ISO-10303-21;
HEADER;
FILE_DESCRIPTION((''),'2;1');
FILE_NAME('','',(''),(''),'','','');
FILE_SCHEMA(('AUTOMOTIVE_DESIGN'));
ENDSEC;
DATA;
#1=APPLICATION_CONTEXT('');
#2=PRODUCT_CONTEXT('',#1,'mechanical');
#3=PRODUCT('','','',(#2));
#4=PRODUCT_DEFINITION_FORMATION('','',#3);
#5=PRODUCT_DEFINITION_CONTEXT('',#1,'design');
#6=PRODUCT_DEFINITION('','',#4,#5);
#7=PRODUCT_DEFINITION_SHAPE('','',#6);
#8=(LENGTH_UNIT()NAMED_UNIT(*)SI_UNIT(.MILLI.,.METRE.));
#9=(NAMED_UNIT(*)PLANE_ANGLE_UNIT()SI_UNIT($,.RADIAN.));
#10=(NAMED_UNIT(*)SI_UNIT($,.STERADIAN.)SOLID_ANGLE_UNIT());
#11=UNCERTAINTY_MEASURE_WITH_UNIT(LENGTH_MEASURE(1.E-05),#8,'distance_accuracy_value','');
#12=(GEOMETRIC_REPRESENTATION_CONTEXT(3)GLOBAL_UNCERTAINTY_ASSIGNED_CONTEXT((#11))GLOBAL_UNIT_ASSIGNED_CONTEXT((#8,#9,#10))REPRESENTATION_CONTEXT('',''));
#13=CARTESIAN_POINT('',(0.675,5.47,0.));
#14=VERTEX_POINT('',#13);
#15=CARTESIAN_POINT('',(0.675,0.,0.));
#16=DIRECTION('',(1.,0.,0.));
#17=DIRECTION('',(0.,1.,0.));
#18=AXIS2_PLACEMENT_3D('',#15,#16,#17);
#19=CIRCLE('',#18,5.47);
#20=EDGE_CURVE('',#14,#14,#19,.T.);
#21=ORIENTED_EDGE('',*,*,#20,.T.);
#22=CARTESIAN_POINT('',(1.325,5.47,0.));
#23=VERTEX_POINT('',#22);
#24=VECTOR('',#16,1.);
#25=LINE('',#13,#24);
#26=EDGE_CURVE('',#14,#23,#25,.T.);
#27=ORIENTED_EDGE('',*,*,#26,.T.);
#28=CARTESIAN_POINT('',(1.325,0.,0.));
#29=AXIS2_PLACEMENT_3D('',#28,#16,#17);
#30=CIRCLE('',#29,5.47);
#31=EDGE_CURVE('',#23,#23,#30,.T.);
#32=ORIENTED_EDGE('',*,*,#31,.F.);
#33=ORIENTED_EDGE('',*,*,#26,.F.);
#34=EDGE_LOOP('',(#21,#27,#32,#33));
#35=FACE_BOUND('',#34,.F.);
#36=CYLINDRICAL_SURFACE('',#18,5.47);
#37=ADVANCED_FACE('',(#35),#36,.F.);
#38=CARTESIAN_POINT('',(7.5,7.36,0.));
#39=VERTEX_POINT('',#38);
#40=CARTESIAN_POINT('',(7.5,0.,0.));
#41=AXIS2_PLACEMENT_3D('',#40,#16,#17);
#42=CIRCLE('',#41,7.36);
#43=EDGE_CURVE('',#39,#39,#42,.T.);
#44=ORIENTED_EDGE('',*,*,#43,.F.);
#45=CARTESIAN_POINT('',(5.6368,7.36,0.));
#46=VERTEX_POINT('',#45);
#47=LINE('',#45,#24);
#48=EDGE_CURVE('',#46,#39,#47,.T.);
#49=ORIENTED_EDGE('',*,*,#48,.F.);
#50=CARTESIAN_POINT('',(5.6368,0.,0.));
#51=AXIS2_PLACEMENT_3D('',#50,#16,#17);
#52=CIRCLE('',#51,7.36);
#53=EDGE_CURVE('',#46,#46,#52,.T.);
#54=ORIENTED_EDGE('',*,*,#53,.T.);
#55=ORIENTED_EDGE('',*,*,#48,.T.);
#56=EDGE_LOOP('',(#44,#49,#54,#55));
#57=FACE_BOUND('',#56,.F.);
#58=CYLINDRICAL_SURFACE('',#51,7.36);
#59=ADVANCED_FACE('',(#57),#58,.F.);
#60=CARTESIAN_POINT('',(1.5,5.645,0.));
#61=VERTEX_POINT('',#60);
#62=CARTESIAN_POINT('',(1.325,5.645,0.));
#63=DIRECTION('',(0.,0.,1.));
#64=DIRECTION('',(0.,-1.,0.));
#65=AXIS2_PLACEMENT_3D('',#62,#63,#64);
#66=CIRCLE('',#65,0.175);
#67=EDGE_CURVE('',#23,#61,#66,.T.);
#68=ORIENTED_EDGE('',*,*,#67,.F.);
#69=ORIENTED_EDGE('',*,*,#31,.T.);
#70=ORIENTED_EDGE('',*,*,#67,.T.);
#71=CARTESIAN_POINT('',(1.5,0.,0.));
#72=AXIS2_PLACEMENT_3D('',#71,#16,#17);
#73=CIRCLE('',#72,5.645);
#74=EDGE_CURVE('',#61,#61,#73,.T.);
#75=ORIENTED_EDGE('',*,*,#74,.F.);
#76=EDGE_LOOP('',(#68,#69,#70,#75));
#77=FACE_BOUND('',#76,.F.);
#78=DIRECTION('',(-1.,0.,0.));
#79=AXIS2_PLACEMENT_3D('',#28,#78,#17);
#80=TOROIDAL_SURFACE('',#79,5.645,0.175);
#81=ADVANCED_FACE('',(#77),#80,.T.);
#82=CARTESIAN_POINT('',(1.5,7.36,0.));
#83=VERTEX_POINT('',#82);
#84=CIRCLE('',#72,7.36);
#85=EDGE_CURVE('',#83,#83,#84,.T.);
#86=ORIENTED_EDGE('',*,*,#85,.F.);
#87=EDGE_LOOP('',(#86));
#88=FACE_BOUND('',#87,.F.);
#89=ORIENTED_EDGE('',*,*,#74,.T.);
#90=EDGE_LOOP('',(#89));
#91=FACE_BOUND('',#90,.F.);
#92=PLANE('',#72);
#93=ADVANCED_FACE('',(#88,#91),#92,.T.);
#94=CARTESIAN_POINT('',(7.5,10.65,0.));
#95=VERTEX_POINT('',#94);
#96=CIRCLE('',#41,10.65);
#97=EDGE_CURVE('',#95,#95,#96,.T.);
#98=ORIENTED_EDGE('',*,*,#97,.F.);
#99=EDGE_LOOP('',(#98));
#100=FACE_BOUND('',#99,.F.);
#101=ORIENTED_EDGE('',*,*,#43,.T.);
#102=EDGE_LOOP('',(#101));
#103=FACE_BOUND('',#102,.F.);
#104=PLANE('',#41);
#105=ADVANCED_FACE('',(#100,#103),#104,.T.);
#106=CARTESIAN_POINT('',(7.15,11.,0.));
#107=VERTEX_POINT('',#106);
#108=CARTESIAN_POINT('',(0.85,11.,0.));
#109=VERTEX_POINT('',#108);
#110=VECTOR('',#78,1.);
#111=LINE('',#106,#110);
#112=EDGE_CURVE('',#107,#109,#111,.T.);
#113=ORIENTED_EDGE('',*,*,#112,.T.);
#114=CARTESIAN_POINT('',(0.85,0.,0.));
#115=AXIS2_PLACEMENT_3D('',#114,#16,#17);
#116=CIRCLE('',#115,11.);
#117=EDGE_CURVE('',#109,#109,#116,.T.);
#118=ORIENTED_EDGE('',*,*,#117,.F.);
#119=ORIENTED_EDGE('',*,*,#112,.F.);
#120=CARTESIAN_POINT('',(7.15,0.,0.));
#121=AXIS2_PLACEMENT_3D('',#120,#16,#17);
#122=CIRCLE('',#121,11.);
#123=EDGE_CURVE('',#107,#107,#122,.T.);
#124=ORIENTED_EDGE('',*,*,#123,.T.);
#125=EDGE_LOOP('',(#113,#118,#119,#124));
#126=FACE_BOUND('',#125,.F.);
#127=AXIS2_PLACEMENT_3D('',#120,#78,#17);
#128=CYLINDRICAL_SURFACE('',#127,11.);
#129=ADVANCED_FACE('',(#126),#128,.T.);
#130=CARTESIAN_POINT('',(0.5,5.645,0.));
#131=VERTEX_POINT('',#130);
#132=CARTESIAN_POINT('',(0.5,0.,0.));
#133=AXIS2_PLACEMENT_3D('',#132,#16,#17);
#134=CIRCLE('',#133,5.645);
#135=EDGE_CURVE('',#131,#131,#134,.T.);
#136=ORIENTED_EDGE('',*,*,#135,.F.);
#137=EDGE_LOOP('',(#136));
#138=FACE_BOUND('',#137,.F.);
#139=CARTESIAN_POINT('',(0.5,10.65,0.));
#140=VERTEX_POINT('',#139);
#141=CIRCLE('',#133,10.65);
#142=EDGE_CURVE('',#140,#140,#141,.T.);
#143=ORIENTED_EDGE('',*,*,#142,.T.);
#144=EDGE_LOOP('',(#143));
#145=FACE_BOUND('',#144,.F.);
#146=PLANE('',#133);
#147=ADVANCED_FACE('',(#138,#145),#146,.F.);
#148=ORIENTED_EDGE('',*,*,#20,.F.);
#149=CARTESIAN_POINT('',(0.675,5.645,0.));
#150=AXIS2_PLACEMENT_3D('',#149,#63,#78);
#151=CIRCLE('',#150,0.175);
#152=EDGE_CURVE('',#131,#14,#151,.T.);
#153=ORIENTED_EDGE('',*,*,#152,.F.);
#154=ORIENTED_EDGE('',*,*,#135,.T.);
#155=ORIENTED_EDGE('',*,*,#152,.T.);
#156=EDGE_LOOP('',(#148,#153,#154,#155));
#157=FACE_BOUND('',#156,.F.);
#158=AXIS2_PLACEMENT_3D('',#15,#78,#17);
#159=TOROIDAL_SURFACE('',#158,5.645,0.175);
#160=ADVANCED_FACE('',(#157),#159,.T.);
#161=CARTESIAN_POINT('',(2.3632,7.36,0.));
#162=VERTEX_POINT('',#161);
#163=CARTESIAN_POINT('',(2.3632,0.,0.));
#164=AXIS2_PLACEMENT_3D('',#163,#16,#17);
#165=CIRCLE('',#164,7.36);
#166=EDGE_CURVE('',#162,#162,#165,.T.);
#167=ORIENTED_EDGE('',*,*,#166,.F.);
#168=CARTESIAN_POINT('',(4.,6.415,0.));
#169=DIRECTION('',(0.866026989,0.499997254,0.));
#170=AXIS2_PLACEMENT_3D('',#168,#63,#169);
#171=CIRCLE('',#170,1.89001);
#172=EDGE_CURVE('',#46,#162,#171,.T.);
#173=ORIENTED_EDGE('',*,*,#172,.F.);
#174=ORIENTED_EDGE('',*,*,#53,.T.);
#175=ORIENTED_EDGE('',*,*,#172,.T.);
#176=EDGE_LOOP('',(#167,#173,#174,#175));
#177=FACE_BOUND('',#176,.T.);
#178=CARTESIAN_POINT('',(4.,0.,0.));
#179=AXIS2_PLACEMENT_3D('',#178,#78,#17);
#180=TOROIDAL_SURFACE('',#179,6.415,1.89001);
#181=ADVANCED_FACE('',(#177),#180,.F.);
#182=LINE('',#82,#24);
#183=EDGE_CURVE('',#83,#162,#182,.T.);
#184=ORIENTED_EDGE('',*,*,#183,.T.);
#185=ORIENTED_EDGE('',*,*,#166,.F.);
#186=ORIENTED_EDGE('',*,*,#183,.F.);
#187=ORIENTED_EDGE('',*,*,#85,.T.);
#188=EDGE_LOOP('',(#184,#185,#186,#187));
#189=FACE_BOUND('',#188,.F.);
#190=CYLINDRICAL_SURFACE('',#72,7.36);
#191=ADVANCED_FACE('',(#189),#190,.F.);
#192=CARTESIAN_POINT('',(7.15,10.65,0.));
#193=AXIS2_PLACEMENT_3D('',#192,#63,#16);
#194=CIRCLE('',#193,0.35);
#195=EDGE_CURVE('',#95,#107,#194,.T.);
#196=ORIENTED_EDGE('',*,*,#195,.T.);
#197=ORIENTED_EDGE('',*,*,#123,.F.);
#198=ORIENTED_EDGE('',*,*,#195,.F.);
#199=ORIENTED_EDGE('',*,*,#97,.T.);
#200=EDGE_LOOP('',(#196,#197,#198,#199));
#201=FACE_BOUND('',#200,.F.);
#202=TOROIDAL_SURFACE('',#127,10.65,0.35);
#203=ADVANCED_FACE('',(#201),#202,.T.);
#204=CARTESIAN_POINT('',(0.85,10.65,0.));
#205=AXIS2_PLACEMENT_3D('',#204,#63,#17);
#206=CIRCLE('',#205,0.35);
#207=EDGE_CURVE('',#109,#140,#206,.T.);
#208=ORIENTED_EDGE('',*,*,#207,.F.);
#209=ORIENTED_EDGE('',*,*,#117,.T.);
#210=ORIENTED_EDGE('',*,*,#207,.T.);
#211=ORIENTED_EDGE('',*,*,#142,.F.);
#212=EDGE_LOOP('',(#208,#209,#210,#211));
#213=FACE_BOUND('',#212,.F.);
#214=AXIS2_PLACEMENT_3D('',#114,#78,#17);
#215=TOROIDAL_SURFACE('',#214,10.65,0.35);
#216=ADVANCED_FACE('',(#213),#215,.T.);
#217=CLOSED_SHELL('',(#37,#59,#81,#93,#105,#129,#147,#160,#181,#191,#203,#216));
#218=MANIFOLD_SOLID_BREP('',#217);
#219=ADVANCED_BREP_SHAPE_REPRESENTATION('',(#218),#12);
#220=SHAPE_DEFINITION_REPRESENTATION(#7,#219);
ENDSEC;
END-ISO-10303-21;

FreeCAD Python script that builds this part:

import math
import FreeCAD as App
import Part
import Sketcher
from FreeCAD import Vector

doc = App.newDocument("Part")
body = doc.addObject("PartDesign::Body", "Body")

# Sketch on XY plane
sketch1 = body.newObject("Sketcher::SketchObject", "Sketch")
sketch1.AttachmentSupport = (doc.getObject("XY_Plane"), [""])
sketch1.MapMode = "FlatFace"
sketch1.addGeometry(Part.ArcOfCircle(Part.Circle(Vector(0.85, 10.65, 0), Vector(0, 0, 1), 0.35), math.radians(90), math.radians(180)), False)
sketch1.addGeometry(Part.LineSegment(Vector(0.5, 10.65, 0), Vector(0.5, 5.64, 0)), False)
sketch1.addGeometry(Part.ArcOfCircle(Part.Circle(Vector(0.68, 5.64, 0), Vector(0, 0, 1), 0.18), math.radians(180), math.radians(270)), False)
sketch1.addGeometry(Part.LineSegment(Vector(0.68, 5.47, 0), Vector(1.32, 5.47, 0)), False)
sketch1.addGeometry(Part.ArcOfCircle(Part.Circle(Vector(1.32, 5.64, 0), Vector(0, 0, 1), 0.17), math.radians(-90), math.radians(0)), False)
sketch1.addGeometry(Part.LineSegment(Vector(1.5, 5.64, 0), Vector(1.5, 7.36, 0)), False)
sketch1.addGeometry(Part.LineSegment(Vector(1.5, 7.36, 0), Vector(2.36, 7.36, 0)), False)
sketch1.addGeometry(Part.ArcOfCircle(Part.Circle(Vector(4, 6.42, 0), Vector(0, 0, 1), 1.89), math.radians(30), math.radians(150)), False)
sketch1.addGeometry(Part.LineSegment(Vector(5.64, 7.36, 0), Vector(7.5, 7.36, 0)), False)
sketch1.addGeometry(Part.LineSegment(Vector(7.5, 7.36, 0), Vector(7.5, 10.65, 0)), False)
sketch1.addGeometry(Part.ArcOfCircle(Part.Circle(Vector(7.15, 10.65, 0), Vector(0, 0, 1), 0.35), math.radians(0), math.radians(90)), False)
sketch1.addGeometry(Part.LineSegment(Vector(7.15, 11, 0), Vector(0.85, 11, 0)), False)
sketch1.addConstraint(Sketcher.Constraint("Tangent", 0, 2, 1, 1))
sketch1.addConstraint(Sketcher.Constraint("Tangent", 1, 2, 2, 1))
sketch1.addConstraint(Sketcher.Constraint("Tangent", 2, 2, 3, 1))
sketch1.addConstraint(Sketcher.Constraint("Tangent", 3, 2, 4, 1))
sketch1.addConstraint(Sketcher.Constraint("Tangent", 4, 2, 5, 1))
sketch1.addConstraint(Sketcher.Constraint("Coincident", 5, 2, 6, 1))
sketch1.addConstraint(Sketcher.Constraint("Coincident", 6, 2, 7, 2))
sketch1.addConstraint(Sketcher.Constraint("Coincident", 7, 1, 8, 1))
sketch1.addConstraint(Sketcher.Constraint("Coincident", 8, 2, 9, 1))
sketch1.addConstraint(Sketcher.Constraint("Tangent", 9, 2, 10, 1))
sketch1.addConstraint(Sketcher.Constraint("Tangent", 10, 2, 11, 1))
sketch1.addConstraint(Sketcher.Constraint("Tangent", 11, 2, 0, 1))
sketch1.addConstraint(Sketcher.Constraint("Vertical", 1))
sketch1.addConstraint(Sketcher.Constraint("Horizontal", 3))
sketch1.addConstraint(Sketcher.Constraint("Vertical", 5))
sketch1.addConstraint(Sketcher.Constraint("Horizontal", 6))
sketch1.addConstraint(Sketcher.Constraint("Horizontal", 8))
sketch1.addConstraint(Sketcher.Constraint("Vertical", 9))
sketch1.addConstraint(Sketcher.Constraint("Horizontal", 11))
sketch1.addConstraint(Sketcher.Constraint("Equal", 2, 4))
sketch1.addConstraint(Sketcher.Constraint("Equal", 0, 10))
sketch1.addConstraint(Sketcher.Constraint("Horizontal", 6, 2, 7, 1))
sketch1.addConstraint(Sketcher.Constraint("Radius", 0, 0.35))
sketch1.addConstraint(Sketcher.Constraint("Radius", 7, 1.89))
sketch1.addConstraint(Sketcher.Constraint("DistanceX", 11, 2, 11, 1, 6.3))
sketch1.addConstraint(Sketcher.Constraint("DistanceX", -1, 1, 7, 3, 4.0))
sketch1.addConstraint(Sketcher.Constraint("DistanceY", -1, 1, 10, 2, 11.0))
sketch1.addConstraint(Sketcher.Constraint("Radius", 2, 0.175))
sketch1.addConstraint(Sketcher.Constraint("DistanceX", 1, 2, 4, 2, 1.0))
sketch1.addConstraint(Sketcher.Constraint("DistanceY", 9, 1, 9, 2, 3.29))
sketch1.addConstraint(Sketcher.Constraint("DistanceX", -1, 1, 0, 2, 0.5))
sketch1.addConstraint(Sketcher.Constraint("DistanceY", 1, 2, 1, 1, 5.005))
sketch1.addConstraint(Sketcher.Constraint("DistanceY", 4, 3, 7, 3, 0.77))
revolution = body.newObject("PartDesign::Revolution", "Revolution")
revolution.Profile = sketch1
revolution.ReferenceAxis = (sketch1, ["H_Axis"])
revolution.Angle = 360

doc.recompute()
